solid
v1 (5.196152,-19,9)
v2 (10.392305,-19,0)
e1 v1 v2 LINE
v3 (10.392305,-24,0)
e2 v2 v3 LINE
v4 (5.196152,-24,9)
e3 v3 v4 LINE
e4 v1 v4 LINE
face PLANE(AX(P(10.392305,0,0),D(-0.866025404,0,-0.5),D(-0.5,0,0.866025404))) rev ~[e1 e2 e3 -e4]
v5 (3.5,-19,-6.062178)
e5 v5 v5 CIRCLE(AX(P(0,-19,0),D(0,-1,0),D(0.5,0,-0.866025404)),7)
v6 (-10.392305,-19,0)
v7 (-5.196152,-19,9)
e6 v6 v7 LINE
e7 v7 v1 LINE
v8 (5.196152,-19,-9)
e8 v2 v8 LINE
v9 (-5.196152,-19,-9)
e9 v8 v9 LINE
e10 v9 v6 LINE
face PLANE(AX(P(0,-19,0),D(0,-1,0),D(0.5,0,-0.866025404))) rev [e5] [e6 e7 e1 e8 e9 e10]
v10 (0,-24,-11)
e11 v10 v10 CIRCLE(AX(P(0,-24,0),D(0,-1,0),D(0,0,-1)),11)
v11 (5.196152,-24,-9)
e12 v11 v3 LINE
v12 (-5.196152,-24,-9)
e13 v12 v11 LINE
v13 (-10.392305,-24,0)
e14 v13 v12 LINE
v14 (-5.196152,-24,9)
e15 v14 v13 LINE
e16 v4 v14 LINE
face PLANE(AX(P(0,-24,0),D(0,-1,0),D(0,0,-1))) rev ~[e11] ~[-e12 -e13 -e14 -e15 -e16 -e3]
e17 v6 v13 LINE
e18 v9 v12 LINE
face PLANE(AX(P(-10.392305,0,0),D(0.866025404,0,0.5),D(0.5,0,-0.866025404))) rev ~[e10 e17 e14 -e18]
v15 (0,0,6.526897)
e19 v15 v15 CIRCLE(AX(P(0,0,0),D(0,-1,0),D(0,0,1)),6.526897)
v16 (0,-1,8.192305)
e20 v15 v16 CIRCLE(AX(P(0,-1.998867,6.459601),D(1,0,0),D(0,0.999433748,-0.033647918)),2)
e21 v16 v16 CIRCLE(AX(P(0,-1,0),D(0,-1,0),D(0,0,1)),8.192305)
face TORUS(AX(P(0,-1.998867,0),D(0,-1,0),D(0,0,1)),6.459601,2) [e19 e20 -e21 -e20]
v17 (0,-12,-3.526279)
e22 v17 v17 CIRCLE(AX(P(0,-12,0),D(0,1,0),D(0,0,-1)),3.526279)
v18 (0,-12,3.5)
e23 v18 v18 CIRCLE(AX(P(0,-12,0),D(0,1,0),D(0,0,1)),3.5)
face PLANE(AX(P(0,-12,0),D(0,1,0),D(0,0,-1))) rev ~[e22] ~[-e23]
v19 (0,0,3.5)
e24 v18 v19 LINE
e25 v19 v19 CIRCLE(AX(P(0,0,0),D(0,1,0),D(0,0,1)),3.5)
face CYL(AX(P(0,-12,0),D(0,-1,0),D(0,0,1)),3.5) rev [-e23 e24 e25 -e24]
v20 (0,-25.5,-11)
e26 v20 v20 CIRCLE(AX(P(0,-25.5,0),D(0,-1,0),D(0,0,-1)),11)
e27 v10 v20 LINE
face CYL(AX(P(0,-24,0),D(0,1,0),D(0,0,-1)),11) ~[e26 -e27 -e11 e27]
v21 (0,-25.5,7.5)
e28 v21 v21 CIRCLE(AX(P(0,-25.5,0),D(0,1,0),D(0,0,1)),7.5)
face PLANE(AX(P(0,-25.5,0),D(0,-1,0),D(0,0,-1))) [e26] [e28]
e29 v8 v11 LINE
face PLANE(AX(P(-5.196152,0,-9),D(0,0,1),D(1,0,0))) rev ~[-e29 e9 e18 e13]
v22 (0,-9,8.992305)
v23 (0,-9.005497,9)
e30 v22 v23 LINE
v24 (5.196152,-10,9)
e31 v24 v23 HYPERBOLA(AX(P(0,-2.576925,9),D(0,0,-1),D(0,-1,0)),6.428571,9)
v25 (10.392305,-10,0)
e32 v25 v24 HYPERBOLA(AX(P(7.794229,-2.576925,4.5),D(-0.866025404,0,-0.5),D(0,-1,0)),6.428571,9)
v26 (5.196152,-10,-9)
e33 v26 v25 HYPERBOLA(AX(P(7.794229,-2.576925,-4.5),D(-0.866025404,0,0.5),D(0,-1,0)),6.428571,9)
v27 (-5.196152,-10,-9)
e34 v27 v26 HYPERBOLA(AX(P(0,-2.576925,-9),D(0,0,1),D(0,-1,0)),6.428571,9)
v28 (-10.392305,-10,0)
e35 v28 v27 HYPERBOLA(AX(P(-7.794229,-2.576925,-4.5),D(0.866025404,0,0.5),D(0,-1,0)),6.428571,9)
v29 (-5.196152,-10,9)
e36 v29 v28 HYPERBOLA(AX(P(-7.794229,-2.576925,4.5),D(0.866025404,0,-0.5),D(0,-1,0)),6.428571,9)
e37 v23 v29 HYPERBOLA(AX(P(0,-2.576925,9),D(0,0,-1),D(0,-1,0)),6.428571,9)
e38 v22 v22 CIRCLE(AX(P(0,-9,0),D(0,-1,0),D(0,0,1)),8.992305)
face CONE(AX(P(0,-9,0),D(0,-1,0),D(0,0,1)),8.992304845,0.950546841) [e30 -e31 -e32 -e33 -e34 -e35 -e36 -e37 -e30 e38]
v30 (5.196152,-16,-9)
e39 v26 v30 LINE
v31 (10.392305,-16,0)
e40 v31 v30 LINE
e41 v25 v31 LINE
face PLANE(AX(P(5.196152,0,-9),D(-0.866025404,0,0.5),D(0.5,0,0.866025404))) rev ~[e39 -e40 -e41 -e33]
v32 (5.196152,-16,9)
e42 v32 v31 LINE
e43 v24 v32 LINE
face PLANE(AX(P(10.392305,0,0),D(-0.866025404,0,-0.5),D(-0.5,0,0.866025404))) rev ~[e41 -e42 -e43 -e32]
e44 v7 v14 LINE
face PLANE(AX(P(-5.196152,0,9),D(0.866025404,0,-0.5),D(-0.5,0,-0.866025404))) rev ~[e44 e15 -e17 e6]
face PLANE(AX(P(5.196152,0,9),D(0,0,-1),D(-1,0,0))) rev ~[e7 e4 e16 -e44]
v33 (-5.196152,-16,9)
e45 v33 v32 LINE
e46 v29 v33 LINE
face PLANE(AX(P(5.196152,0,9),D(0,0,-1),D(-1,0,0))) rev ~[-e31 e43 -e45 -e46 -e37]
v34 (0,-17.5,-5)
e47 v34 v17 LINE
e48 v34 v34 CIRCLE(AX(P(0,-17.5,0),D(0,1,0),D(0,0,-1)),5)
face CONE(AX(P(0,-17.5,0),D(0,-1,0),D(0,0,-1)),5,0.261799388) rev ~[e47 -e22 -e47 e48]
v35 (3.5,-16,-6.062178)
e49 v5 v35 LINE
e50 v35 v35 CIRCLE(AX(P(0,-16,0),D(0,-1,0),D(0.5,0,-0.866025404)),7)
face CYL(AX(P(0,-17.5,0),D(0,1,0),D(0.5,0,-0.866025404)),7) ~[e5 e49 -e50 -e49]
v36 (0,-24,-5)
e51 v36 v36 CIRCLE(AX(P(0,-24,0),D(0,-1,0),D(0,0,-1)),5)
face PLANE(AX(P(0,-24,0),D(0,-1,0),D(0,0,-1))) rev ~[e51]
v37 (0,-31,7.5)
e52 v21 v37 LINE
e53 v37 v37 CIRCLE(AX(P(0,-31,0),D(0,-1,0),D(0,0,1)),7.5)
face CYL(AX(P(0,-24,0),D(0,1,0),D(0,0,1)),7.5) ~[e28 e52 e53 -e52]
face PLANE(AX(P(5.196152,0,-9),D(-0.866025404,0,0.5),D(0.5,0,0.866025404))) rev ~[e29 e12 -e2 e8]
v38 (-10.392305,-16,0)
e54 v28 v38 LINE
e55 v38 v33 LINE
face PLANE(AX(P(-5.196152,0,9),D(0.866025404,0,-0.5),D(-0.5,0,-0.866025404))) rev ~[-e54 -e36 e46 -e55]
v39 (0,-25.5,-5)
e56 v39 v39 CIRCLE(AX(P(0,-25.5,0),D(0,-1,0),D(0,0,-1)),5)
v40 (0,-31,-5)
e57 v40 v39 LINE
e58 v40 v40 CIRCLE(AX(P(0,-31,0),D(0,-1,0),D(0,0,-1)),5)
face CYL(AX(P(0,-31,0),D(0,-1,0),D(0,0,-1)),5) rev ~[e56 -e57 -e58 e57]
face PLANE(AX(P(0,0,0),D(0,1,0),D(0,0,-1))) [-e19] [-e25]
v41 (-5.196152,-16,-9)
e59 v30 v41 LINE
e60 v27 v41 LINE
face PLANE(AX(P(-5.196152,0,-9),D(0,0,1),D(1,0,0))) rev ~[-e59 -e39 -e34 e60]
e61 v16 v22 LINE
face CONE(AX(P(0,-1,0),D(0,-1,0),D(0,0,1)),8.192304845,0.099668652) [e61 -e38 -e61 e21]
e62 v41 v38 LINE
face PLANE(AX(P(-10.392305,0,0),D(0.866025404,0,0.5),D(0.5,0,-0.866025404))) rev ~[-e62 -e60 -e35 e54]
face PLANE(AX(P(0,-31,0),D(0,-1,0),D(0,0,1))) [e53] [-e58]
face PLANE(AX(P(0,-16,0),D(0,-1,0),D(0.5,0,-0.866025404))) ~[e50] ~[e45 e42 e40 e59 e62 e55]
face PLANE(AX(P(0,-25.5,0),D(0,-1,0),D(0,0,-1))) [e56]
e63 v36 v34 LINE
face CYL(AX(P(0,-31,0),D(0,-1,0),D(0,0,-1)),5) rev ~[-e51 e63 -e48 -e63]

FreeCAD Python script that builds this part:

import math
import FreeCAD as App
import Part
import Sketcher
Q = App.Units.Quantity


def edges_at(feature, points):
    """Names of the edges that pass closest to the given points."""
    edges = feature.Shape.Edges
    near = lambda p: min(range(len(edges)), key=lambda i: edges[i].distToShape(Part.Vertex(*p))[0])
    return sorted({f"Edge{near(p) + 1}" for p in points})

doc = App.newDocument("Part")
body = doc.addObject("PartDesign::Body", "Body")

# Sketch on XZ plane
sketch1 = doc.addObject("Sketcher::SketchObject", "Sketch")
body.addObject(sketch1)
sketch1.AttachmentSupport = (doc.XZ_Plane, [""])
sketch1.MapMode = "FlatFace"
sketch1.addGeometry(Part.LineSegment(App.Vector(5, -9, 0), App.Vector(-5, -9, 0)), False)
sketch1.addGeometry(Part.LineSegment(App.Vector(-5, -9, 0), App.Vector(-10, 0, 0)), False)
sketch1.addGeometry(Part.LineSegment(App.Vector(-10, 0, 0), App.Vector(-5, 9, 0)), False)
sketch1.addGeometry(Part.LineSegment(App.Vector(-5, 9, 0), App.Vector(5, 9, 0)), False)
sketch1.addGeometry(Part.LineSegment(App.Vector(5, 9, 0), App.Vector(10, 0, 0)), False)
sketch1.addGeometry(Part.LineSegment(App.Vector(10, 0, 0), App.Vector(5, -9, 0)), False)
sketch1.addConstraint(Sketcher.Constraint("Coincident", 0, 2, 1, 1))
sketch1.addConstraint(Sketcher.Constraint("Coincident", 1, 2, 2, 1))
sketch1.addConstraint(Sketcher.Constraint("Coincident", 2, 2, 3, 1))
sketch1.addConstraint(Sketcher.Constraint("Coincident", 3, 2, 4, 1))
sketch1.addConstraint(Sketcher.Constraint("Coincident", 4, 2, 5, 1))
sketch1.addConstraint(Sketcher.Constraint("Coincident", 5, 2, 0, 1))
sketch1.addConstraint(Sketcher.Constraint("Horizontal", 0))
sketch1.addConstraint(Sketcher.Constraint("Horizontal", 3))
sketch1.addConstraint(Sketcher.Constraint("Symmetric", 0, 2, 3, 2, -1, 1))
sketch1.addConstraint(Sketcher.Constraint("Symmetric", 1, 2, 4, 2, -1, 1))
sketch1.addConstraint(Sketcher.Constraint("PointOnObject", 1, 2, -1))
sketch1.addConstraint(Sketcher.Constraint("Parallel", 2, 5))
sketch1.addConstraint(Sketcher.Constraint("Vertical", 0, 2, 2, 2))
sketch1.addConstraint(Sketcher.Constraint("Angle", 1, Q("120 deg")))
sketch1.addConstraint(Sketcher.Constraint("DistanceY", 0, 2, -1, 1, Q("9 mm")))
sketch1.addConstraint(Sketcher.Constraint("DistanceX", 0, 2, 0, 1, Q("10.392305 mm")))
pad1 = doc.addObject("PartDesign::Pad", "Pad")
body.addObject(pad1)
pad1.Profile = sketch1
pad1.Length = 24

# Sketch on XY plane
sketch2 = doc.addObject("Sketcher::SketchObject", "Sketch001")
body.addObject(sketch2)
sketch2.AttachmentSupport = (doc.XY_Plane, [""])
sketch2.MapMode = "FlatFace"
sketch2.addGeometry(Part.LineSegment(App.Vector(9, -9, 0), App.Vector(10.4, -10, 0)), False)
sketch2.addGeometry(Part.LineSegment(App.Vector(10.4, -10, 0), App.Vector(11.9, -10, 0)), False)
sketch2.addGeometry(Part.LineSegment(App.Vector(11.9, -10, 0), App.Vector(11.9, 2.2, 0)), False)
sketch2.addGeometry(Part.LineSegment(App.Vector(11.9, 2.2, 0), App.Vector(6.4, 2.2, 0)), False)
sketch2.addGeometry(Part.LineSegment(App.Vector(6.4, 2.2, 0), App.Vector(6.4, 0, 0)), False)
sketch2.addGeometry(Part.ArcOfCircle(Part.Circle(App.Vector(6.5, -2, 0), App.Vector(0, 0, 1), 2), math.radians(30), math.radians(92)), False)
sketch2.addGeometry(Part.LineSegment(App.Vector(8.2, -1, 0), App.Vector(9, -9, 0)), False)
sketch2.addConstraint(Sketcher.Constraint("Coincident", 0, 2, 1, 1))
sketch2.addConstraint(Sketcher.Constraint("Coincident", 1, 2, 2, 1))
sketch2.addConstraint(Sketcher.Constraint("Coincident", 2, 2, 3, 1))
sketch2.addConstraint(Sketcher.Constraint("Coincident", 3, 2, 4, 1))
sketch2.addConstraint(Sketcher.Constraint("Coincident", 4, 2, 5, 2))
sketch2.addConstraint(Sketcher.Constraint("Coincident", 5, 1, 6, 1))
sketch2.addConstraint(Sketcher.Constraint("Coincident", 6, 2, 0, 1))
sketch2.addConstraint(Sketcher.Constraint("Horizontal", 1))
sketch2.addConstraint(Sketcher.Constraint("Vertical", 2))
sketch2.addConstraint(Sketcher.Constraint("Horizontal", 3))
sketch2.addConstraint(Sketcher.Constraint("Vertical", 4))
sketch2.addConstraint(Sketcher.Constraint("PointOnObject", 4, 2, -1))
sketch2.addConstraint(Sketcher.Constraint("Radius", 5, Q("2 mm")))
sketch2.addConstraint(Sketcher.Constraint("DistanceY", 0, 2, -1, 1, Q("10 mm")))
sketch2.addConstraint(Sketcher.Constraint("DistanceY", 5, 1, -1, 1, Q("1 mm")))
sketch2.addConstraint(Sketcher.Constraint("DistanceY", 6, 2, -1, 1, Q("9 mm")))
sketch2.addConstraint(Sketcher.Constraint("DistanceX", 3, 2, 0, 2, Q("4 mm")))
sketch2.addConstraint(Sketcher.Constraint("DistanceX", 4, 2, 5, 1, Q("1.8 mm")))
sketch2.addConstraint(Sketcher.Constraint("DistanceX", 6, 2, 0, 2, Q("1.4 mm")))
sketch2.addConstraint(Sketcher.Constraint("DistanceX", 1, 1, 1, 2, Q("1.489111 mm")))
sketch2.addConstraint(Sketcher.Constraint("DistanceX", -1, 1, 5, 3, Q("6.459601 mm")))
sketch2.addConstraint(Sketcher.Constraint("DistanceY", 2, 1, 2, 2, Q("12.231526 mm")))
groove = doc.addObject("PartDesign::Groove", "Groove")
body.addObject(groove)
groove.Profile = sketch2
groove.ReferenceAxis = (sketch2, ["V_Axis"])
groove.Angle = 360

# Sketch on XY plane
sketch3 = doc.addObject("Sketcher::SketchObject", "Sketch002")
body.addObject(sketch3)
sketch3.AttachmentSupport = (doc.XY_Plane, [""])
sketch3.MapMode = "FlatFace"
sketch3.addGeometry(Part.LineSegment(App.Vector(7, -16, 0), App.Vector(7, -19, 0)), False)
sketch3.addGeometry(Part.LineSegment(App.Vector(7, -19, 0), App.Vector(10.4, -19, 0)), False)
sketch3.addGeometry(Part.LineSegment(App.Vector(10.4, -19, 0), App.Vector(10.4, -16, 0)), False)
sketch3.addGeometry(Part.LineSegment(App.Vector(10.4, -16, 0), App.Vector(7, -16, 0)), False)
sketch3.addConstraint(Sketcher.Constraint("Coincident", 0, 2, 1, 1))
sketch3.addConstraint(Sketcher.Constraint("Coincident", 1, 2, 2, 1))
sketch3.addConstraint(Sketcher.Constraint("Coincident", 2, 2, 3, 1))
sketch3.addConstraint(Sketcher.Constraint("Coincident", 3, 2, 0, 1))
sketch3.addConstraint(Sketcher.Constraint("Vertical", 0))
sketch3.addConstraint(Sketcher.Constraint("Horizontal", 1))
sketch3.addConstraint(Sketcher.Constraint("Vertical", 2))
sketch3.addConstraint(Sketcher.Constraint("Horizontal", 3))
sketch3.addConstraint(Sketcher.Constraint("DistanceY", 0, 2, 0, 1, Q("3 mm")))
sketch3.addConstraint(Sketcher.Constraint("DistanceX", -1, 1, 0, 2, Q("7 mm")))
sketch3.addConstraint(Sketcher.Constraint("DistanceY", 0, 2, -1, 1, Q("19 mm")))
sketch3.addConstraint(Sketcher.Constraint("DistanceX", 1, 1, 1, 2, Q("3.392305 mm")))
groove2 = doc.addObject("PartDesign::Groove", "Groove001")
body.addObject(groove2)
groove2.Profile = sketch3
groove2.ReferenceAxis = (sketch3, ["V_Axis"])
groove2.Angle = 360

# Sketch on XZ plane
sketch4 = doc.addObject("Sketcher::SketchObject", "Sketch003")
body.addObject(sketch4)
sketch4.AttachmentSupport = (doc.XZ_Plane, [""])
sketch4.MapMode = "FlatFace"
sketch4.AttachmentOffset = App.Placement(App.Vector(0, 0, 24), App.Rotation())
sketch4.addGeometry(Part.Circle(App.Vector(0, 0, 0), App.Vector(0, 0, 1), 8), False)
sketch4.addConstraint(Sketcher.Constraint("Coincident", 0, 3, -1, 1))
sketch4.addConstraint(Sketcher.Constraint("Diameter", 0, Q("15 mm")))
pad2 = doc.addObject("PartDesign::Pad", "Pad001")
body.addObject(pad2)
pad2.Profile = sketch4
pad2.Length = 7

# Sketch on XZ plane
sketch5 = doc.addObject("Sketcher::SketchObject", "Sketch004")
body.addObject(sketch5)
sketch5.AttachmentSupport = (doc.XZ_Plane, [""])
sketch5.MapMode = "FlatFace"
sketch5.AttachmentOffset = App.Placement(App.Vector(0, 0, 31), App.Rotation())
sketch5.addGeometry(Part.Circle(App.Vector(0, 0, 0), App.Vector(0, 0, 1), 5), False)
sketch5.addConstraint(Sketcher.Constraint("Coincident", 0, 3, -1, 1))
sketch5.addConstraint(Sketcher.Constraint("Diameter", 0, Q("10 mm")))
pocket1 = doc.addObject("PartDesign::Pocket", "Pocket")
body.addObject(pocket1)
pocket1.Profile = sketch5
pocket1.Type = "ThroughAll"

# Sketch on XZ plane
sketch6 = doc.addObject("Sketcher::SketchObject", "Sketch005")
body.addObject(sketch6)
sketch6.AttachmentSupport = (doc.XZ_Plane, [""])
sketch6.MapMode = "FlatFace"
sketch6.AttachmentOffset = App.Placement(App.Vector(0, 0, 12), App.Rotation())
sketch6.addGeometry(Part.Circle(App.Vector(0, 0, 0), App.Vector(0, 0, 1), 5), False)
sketch6.addGeometry(Part.Circle(App.Vector(0, 0, 0), App.Vector(0, 0, 1), 3.5), False)
sketch6.addConstraint(Sketcher.Constraint("Coincident", 0, 3, -1, 1))
sketch6.addConstraint(Sketcher.Constraint("Coincident", 1, 3, -1, 1))
sketch6.addConstraint(Sketcher.Constraint("Diameter", 0, Q("10 mm")))
sketch6.addConstraint(Sketcher.Constraint("Diameter", 1, Q("7 mm")))
pad3 = doc.addObject("PartDesign::Pad", "Pad002")
body.addObject(pad3)
pad3.Profile = sketch6
pad3.Length = 12
pad3.Reversed = True
doc.recompute()

chamfer = doc.addObject("PartDesign::Chamfer", "Chamfer")
body.addObject(chamfer)
chamfer.Base = (pad3, edges_at(pad3, [(0, -12, 5)]))
chamfer.ChamferType = "Two distances"
chamfer.Size = 5.5
chamfer.Size2 = 1.473721
chamfer.FlipDirection = True

# Sketch on XZ plane
sketch7 = doc.addObject("Sketcher::SketchObject", "Sketch006")
body.addObject(sketch7)
sketch7.AttachmentSupport = (doc.XZ_Plane, [""])
sketch7.MapMode = "FlatFace"
sketch7.AttachmentOffset = App.Placement(App.Vector(0, 0, 24), App.Rotation())
sketch7.addGeometry(Part.Circle(App.Vector(0, 0, 0), App.Vector(0, 0, 1), 11), False)
sketch7.addConstraint(Sketcher.Constraint("Coincident", 0, 3, -1, 1))
sketch7.addConstraint(Sketcher.Constraint("Diameter", 0, Q("22 mm")))
pad4 = doc.addObject("PartDesign::Pad", "Pad003")
body.addObject(pad4)
pad4.Profile = sketch7
pad4.Length = 1.5

doc.recompute()
